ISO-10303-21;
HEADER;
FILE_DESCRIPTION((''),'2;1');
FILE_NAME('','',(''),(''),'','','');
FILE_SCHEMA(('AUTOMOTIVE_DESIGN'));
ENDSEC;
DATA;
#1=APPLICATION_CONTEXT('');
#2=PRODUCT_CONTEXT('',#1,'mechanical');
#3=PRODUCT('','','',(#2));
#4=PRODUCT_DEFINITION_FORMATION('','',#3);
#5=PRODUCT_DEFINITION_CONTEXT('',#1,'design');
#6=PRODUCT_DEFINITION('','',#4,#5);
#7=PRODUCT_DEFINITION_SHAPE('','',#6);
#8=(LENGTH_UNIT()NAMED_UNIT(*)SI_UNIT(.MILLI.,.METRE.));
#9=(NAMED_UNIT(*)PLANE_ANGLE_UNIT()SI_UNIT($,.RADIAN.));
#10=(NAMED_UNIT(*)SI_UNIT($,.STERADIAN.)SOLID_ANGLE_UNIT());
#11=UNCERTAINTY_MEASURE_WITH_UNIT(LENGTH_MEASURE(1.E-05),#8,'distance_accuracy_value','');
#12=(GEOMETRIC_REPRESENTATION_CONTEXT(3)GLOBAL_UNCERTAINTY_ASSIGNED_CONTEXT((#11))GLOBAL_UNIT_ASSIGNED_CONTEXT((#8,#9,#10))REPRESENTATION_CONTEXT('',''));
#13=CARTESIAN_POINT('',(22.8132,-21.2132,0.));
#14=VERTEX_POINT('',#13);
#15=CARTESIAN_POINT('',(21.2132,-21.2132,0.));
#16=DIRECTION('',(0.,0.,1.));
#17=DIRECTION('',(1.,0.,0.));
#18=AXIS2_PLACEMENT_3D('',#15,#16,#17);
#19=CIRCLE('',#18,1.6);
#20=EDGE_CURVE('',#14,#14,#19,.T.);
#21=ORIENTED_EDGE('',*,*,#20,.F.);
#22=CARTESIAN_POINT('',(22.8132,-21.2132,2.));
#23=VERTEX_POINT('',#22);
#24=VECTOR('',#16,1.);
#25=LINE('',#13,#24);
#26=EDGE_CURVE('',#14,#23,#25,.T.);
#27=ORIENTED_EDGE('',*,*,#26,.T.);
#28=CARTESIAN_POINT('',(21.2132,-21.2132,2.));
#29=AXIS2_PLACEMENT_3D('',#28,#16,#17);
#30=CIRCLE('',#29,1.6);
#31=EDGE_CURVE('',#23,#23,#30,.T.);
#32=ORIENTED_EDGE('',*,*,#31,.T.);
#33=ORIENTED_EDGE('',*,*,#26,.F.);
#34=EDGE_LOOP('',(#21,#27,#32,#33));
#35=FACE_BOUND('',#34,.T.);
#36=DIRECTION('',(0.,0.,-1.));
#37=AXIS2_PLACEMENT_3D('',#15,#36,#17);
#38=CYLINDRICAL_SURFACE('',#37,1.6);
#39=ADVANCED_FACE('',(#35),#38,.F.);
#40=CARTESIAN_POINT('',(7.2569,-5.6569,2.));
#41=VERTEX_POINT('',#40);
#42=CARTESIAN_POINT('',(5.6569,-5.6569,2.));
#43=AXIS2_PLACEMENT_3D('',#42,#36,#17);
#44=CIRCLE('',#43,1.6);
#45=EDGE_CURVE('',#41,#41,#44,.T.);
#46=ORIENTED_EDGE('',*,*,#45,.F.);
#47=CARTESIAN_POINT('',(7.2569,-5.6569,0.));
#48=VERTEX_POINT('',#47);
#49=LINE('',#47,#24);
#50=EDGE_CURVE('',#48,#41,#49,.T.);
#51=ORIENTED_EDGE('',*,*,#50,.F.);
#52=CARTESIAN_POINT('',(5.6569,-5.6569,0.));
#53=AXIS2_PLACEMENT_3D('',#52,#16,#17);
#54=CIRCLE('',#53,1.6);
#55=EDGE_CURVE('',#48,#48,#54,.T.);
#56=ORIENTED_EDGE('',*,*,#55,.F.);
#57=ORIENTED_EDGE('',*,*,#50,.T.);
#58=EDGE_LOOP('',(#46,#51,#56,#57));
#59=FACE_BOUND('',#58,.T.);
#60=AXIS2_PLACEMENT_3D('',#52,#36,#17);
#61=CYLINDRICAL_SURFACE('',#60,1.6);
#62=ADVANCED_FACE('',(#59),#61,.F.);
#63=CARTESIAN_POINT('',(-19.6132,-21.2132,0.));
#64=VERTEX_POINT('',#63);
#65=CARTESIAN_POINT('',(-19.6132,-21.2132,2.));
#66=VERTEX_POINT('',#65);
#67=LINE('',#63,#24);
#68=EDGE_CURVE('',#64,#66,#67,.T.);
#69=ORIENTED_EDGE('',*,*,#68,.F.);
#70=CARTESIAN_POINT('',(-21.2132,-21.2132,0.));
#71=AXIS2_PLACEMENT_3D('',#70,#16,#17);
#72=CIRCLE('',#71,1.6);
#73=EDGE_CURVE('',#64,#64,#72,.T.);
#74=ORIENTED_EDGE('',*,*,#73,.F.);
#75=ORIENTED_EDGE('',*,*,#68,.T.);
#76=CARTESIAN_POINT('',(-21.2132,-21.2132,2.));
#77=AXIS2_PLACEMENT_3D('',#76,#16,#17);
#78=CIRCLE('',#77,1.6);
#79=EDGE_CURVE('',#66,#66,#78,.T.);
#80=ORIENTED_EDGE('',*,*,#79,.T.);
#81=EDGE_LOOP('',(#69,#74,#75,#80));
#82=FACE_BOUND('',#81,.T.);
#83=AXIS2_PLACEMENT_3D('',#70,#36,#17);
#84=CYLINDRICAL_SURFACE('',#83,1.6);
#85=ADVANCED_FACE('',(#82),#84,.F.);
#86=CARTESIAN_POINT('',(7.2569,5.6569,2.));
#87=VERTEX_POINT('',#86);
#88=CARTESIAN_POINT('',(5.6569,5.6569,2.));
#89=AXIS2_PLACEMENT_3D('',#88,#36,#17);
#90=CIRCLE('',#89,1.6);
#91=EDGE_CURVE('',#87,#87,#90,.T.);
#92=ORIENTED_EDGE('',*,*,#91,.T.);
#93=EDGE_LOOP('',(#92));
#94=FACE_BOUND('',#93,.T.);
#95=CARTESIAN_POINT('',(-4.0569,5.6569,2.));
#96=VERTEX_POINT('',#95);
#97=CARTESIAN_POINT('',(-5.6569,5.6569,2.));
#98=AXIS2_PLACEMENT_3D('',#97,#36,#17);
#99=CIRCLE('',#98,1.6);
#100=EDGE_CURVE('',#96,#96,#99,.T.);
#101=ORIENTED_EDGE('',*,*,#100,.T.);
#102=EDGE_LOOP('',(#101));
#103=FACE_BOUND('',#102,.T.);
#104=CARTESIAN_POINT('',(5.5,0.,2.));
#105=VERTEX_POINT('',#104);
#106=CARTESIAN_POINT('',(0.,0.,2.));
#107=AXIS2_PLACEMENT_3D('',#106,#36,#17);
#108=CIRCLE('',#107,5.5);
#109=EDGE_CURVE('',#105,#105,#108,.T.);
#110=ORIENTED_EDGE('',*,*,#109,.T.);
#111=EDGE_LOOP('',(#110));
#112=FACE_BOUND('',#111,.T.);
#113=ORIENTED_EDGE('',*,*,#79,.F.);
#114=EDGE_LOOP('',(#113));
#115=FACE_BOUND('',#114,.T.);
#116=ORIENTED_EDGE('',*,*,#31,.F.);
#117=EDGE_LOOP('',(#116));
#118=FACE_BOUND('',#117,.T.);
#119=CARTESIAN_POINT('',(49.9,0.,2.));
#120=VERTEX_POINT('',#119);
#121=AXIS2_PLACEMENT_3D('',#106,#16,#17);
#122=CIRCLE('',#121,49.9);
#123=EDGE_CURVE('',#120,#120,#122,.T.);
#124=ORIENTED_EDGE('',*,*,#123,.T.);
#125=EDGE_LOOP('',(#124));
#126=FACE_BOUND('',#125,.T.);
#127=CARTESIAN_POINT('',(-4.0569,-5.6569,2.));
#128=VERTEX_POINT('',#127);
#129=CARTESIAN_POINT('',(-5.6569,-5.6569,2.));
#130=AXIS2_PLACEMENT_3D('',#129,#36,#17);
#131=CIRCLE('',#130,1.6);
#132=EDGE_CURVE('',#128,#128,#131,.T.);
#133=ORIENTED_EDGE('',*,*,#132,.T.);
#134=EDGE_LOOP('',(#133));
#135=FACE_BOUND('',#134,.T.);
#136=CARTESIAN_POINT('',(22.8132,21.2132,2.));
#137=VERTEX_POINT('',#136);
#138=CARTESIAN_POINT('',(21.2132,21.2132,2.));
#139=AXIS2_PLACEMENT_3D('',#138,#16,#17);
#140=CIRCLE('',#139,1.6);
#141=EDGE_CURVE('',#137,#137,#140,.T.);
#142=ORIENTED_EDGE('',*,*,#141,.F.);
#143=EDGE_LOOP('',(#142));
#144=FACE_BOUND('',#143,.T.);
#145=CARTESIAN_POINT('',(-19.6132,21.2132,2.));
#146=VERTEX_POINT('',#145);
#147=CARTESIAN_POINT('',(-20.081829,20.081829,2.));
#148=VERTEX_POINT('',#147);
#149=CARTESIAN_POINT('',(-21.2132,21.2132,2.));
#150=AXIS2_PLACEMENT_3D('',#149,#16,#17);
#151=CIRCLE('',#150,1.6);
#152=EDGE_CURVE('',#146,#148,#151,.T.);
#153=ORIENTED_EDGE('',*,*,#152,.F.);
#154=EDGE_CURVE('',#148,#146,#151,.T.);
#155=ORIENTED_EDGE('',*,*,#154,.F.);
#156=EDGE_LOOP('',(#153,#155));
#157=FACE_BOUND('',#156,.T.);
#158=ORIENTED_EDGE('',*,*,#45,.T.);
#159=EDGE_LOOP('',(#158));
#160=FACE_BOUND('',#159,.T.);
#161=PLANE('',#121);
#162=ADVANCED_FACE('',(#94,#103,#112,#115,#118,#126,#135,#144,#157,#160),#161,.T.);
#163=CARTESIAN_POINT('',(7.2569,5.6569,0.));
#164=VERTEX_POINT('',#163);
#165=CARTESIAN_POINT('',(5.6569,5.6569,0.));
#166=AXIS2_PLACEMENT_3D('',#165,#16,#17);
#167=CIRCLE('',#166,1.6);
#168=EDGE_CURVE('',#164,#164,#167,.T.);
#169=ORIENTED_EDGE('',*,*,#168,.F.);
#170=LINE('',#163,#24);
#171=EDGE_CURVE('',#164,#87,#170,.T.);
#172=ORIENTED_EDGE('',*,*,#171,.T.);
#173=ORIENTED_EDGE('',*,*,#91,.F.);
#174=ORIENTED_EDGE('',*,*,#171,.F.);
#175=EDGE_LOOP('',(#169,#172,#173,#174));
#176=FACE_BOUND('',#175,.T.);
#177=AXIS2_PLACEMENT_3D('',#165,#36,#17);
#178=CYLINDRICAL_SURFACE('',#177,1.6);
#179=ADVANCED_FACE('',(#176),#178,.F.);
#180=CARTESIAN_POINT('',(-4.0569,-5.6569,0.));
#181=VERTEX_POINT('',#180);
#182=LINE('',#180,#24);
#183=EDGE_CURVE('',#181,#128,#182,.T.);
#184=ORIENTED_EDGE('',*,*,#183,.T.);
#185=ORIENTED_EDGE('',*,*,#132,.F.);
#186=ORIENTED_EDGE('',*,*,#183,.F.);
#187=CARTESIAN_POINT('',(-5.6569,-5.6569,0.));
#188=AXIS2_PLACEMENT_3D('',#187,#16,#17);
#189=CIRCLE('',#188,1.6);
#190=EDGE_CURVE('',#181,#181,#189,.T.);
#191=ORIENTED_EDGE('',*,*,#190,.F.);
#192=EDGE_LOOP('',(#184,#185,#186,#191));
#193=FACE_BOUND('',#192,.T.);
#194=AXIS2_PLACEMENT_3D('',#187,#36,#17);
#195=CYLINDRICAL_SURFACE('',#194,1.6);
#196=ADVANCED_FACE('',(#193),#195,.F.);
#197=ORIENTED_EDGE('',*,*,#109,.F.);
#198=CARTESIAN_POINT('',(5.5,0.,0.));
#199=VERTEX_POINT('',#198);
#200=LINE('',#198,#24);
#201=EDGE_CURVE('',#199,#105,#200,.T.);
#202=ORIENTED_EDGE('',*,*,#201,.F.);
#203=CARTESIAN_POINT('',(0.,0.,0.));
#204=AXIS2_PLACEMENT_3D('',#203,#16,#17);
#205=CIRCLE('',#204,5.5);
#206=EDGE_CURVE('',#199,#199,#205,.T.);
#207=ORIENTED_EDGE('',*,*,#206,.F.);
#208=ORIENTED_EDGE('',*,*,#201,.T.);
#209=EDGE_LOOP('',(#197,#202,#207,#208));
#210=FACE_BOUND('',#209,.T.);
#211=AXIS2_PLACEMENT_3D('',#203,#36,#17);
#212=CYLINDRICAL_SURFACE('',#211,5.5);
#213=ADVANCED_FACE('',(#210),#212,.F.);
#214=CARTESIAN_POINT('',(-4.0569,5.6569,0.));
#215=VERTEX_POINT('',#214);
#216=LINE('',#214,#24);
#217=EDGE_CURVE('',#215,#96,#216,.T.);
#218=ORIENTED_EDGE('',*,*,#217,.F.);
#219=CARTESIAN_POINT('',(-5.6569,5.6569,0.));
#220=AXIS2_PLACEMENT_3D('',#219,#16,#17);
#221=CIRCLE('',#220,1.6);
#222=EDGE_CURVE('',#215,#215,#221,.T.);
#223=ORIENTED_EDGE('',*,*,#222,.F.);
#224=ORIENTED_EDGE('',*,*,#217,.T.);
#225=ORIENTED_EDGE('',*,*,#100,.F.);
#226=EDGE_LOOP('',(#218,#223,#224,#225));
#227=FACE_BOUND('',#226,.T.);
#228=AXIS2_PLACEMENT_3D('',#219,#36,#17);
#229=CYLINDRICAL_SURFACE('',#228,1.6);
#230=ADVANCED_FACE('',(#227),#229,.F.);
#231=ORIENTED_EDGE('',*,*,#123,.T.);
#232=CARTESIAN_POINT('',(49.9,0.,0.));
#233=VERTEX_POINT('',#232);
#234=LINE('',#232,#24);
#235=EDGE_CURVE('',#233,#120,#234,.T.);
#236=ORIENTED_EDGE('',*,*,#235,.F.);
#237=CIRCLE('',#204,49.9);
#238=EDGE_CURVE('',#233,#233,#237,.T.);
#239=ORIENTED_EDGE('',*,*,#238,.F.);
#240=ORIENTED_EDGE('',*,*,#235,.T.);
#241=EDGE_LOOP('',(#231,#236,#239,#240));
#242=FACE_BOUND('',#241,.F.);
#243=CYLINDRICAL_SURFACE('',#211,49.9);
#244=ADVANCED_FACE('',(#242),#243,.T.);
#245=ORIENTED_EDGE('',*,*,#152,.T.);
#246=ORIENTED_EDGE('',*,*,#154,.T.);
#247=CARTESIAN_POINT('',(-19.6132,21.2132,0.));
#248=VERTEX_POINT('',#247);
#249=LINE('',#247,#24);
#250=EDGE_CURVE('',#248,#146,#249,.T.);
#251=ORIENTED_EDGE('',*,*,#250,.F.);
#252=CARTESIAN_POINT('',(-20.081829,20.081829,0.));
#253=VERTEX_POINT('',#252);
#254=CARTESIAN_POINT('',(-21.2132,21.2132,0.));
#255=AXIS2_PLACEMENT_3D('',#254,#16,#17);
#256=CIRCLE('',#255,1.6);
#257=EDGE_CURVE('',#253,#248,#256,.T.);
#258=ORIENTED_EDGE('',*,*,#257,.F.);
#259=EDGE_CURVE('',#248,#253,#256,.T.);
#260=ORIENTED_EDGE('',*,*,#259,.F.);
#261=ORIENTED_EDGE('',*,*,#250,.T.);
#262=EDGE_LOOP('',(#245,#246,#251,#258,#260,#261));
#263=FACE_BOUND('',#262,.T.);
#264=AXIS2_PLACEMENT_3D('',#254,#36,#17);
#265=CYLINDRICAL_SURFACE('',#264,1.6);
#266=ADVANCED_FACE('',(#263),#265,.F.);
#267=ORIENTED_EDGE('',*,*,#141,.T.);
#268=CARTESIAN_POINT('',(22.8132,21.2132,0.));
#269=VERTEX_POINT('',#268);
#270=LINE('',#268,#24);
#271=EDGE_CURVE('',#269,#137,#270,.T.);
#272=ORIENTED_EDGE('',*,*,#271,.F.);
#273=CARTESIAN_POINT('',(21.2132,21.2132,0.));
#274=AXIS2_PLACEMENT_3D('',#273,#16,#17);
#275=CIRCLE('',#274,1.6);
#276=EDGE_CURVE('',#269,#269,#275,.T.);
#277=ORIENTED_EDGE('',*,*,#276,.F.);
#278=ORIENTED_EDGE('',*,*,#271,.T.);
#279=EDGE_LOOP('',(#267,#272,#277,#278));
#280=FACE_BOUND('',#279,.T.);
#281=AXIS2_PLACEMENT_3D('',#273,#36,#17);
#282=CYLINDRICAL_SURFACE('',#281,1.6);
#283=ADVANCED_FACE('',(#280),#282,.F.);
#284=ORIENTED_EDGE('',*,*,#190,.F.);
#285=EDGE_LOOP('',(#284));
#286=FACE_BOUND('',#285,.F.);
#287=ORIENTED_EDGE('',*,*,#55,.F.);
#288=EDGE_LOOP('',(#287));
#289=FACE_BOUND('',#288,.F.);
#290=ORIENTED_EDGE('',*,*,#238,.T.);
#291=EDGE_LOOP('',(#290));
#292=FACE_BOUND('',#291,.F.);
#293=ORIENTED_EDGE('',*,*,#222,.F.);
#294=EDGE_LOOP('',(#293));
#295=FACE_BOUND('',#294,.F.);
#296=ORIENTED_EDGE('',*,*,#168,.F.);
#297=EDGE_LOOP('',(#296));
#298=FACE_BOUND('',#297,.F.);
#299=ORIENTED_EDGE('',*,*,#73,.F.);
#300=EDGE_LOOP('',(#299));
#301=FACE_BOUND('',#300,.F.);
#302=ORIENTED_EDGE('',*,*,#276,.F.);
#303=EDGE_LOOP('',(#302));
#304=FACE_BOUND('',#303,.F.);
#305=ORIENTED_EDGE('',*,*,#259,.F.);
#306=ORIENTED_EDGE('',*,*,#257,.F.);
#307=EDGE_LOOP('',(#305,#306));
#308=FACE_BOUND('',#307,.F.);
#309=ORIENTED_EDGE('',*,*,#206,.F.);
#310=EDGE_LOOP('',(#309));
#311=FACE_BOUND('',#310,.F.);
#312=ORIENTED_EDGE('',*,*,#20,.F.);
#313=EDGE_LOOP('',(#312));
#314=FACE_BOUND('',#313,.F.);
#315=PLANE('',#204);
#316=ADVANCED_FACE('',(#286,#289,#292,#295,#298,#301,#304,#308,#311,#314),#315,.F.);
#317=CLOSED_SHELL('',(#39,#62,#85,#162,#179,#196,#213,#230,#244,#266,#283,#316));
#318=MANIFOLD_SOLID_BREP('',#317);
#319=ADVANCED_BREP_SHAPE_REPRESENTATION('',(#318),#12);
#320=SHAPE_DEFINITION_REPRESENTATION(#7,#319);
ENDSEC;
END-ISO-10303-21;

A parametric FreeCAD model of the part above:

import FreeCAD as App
import Part
import Sketcher

doc = App.newDocument("Part")
body = doc.addObject("PartDesign::Body", "Body")

# Sketch on XY plane
sketch1 = body.newObject("Sketcher::SketchObject", "Sketch")
sketch1.AttachmentSupport = (doc.getObject("XY_Plane"), [""])
sketch1.MapMode = "FlatFace"
sketch1.addGeometry([
    Part.Circle(App.Vector(0, 0, 0), App.Vector(0, 0, 1), 49.9),  # 0
    Part.Circle(App.Vector(-21.2132, -21.2132, 0), App.Vector(0, 0, 1), 1.6),  # 1
    Part.Circle(App.Vector(21.2132, -21.2132, 0), App.Vector(0, 0, 1), 1.6),  # 2
    Part.Circle(App.Vector(-21.2132, 21.2132, 0), App.Vector(0, 0, 1), 1.6),  # 3
    Part.Circle(App.Vector(21.2132, 21.2132, 0), App.Vector(0, 0, 1), 1.6),  # 4
], False)
sketch1.addConstraint([
    Sketcher.Constraint("Coincident", 0, 3, -1, 1),
    Sketcher.Constraint("Equal", 1, 2),
    Sketcher.Constraint("Equal", 2, 3),
    Sketcher.Constraint("Equal", 3, 4),
    Sketcher.Constraint("Symmetric", 2, 3, 3, 3, -1, 1),
    Sketcher.Constraint("Symmetric", 1, 3, 4, 3, -1, 1),
    Sketcher.Constraint("Symmetric", 1, 3, 2, 3, -2),
    Sketcher.Constraint("Diameter", 0, 99.8),
    Sketcher.Constraint("Diameter", 1, 3.2),
    Sketcher.Constraint("DistanceX", 1, 3, -1, 1, 21.2132),
    Sketcher.Constraint("DistanceY", 1, 3, -1, 1, 21.2132),
])
pad1 = body.newObject("PartDesign::Pad", "Pad")
pad1.Profile = sketch1
pad1.Length = 2

# Sketch on XY plane
sketch2 = body.newObject("Sketcher::SketchObject", "Sketch001")
sketch2.AttachmentSupport = (doc.getObject("XY_Plane"), [""])
sketch2.MapMode = "FlatFace"
sketch2.addGeometry([
    Part.Circle(App.Vector(-5.6569, 5.6569, 0), App.Vector(0, 0, 1), 1.6),  # 0
    Part.Circle(App.Vector(0, 0, 0), App.Vector(0, 0, 1), 5.5),  # 1
    Part.Circle(App.Vector(-5.6569, -5.6569, 0), App.Vector(0, 0, 1), 1.6),  # 2
    Part.Circle(App.Vector(5.6569, -5.6569, 0), App.Vector(0, 0, 1), 1.6),  # 3
    Part.Circle(App.Vector(5.6569, 5.6569, 0), App.Vector(0, 0, 1), 1.6),  # 4
], False)
sketch2.addConstraint([
    Sketcher.Constraint("Coincident", 1, 3, -1, 1),
    Sketcher.Constraint("Equal", 0, 2),
    Sketcher.Constraint("Equal", 2, 3),
    Sketcher.Constraint("Equal", 3, 4),
    Sketcher.Constraint("Symmetric", 0, 3, 3, 3, -1, 1),
    Sketcher.Constraint("Symmetric", 2, 3, 4, 3, -1, 1),
    Sketcher.Constraint("Symmetric", 2, 3, 3, 3, -2),
    Sketcher.Constraint("Diameter", 1, 11.0),
    Sketcher.Constraint("Diameter", 0, 3.2),
    Sketcher.Constraint("DistanceX", 0, 3, -1, 1, 5.657),
    Sketcher.Constraint("DistanceY", -1, 1, 0, 3, 5.657),
])
pocket1 = body.newObject("PartDesign::Pocket", "Pocket")
pocket1.Profile = sketch2
pocket1.Length = 35
pocket1.Reversed = True

doc.recompute()
